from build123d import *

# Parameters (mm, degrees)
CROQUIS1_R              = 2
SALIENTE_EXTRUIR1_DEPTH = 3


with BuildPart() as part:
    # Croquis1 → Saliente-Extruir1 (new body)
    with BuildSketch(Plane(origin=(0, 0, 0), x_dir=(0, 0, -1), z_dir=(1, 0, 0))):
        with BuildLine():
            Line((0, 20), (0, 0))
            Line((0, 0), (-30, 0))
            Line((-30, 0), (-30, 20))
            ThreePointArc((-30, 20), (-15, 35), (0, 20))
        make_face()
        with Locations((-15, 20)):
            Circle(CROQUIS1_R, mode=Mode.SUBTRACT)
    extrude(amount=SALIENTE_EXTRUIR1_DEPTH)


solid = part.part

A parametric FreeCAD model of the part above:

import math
import FreeCAD as App
import Part
import Sketcher

V = App.Vector
Q = App.Units.Quantity

doc = App.newDocument("Part")
params = doc.addObject("Spreadsheet::Sheet", "Params")
for row, (alias, value) in enumerate([
    ("sketch1_diameter", "4 mm"),
    ("sketch1_radius", "15 mm"),
    ("sketch1_width", "20 mm"),
    ("pad1_length", "3 mm"),
], start=1):
    params.set(f"A{row}", alias)
    params.set(f"B{row}", "=" + value)
    params.setAlias(f"B{row}", alias)

body = doc.addObject("PartDesign::Body", "Body")

# Sketch on YZ plane
sketch1 = doc.addObject("Sketcher::SketchObject", "Sketch")
body.addObject(sketch1)
sketch1.AttachmentSupport = (doc.YZ_Plane, [""])
sketch1.MapMode = "FlatFace"
sketch1.addGeometry(Part.LineSegment(V(0, 0, 0), V(20, 0, 0)), False)
sketch1.addGeometry(Part.ArcOfCircle(Part.Circle(V(20, 15, 0), V(0, 0, 1), 15), math.radians(-90), math.radians(90)), False)
sketch1.addGeometry(Part.LineSegment(V(20, 30, 0), V(0, 30, 0)), False)
sketch1.addGeometry(Part.LineSegment(V(0, 30, 0), V(0, 0, 0)), False)
sketch1.addGeometry(Part.Circle(V(20, 15, 0), V(0, 0, 1), 2), False)
sketch1.addConstraint(Sketcher.Constraint("Tangent", 0, 2, 1, 1))
sketch1.addConstraint(Sketcher.Constraint("Tangent", 1, 2, 2, 1))
sketch1.addConstraint(Sketcher.Constraint("Coincident", 2, 2, 3, 1))
sketch1.addConstraint(Sketcher.Constraint("Coincident", 3, 2, 0, 1))
sketch1.addConstraint(Sketcher.Constraint("Horizontal", 0))
sketch1.addConstraint(Sketcher.Constraint("Horizontal", 2))
sketch1.addConstraint(Sketcher.Constraint("Vertical", 3))
sketch1.addConstraint(Sketcher.Constraint("Coincident", 3, 2, -1, 1))
sketch1.addConstraint(Sketcher.Constraint("Coincident", 4, 3, 1, 3))
sketch1.addConstraint(Sketcher.Constraint("Diameter", 4, Q("4 mm")))
sketch1.addConstraint(Sketcher.Constraint("Radius", 1, Q("15 mm")))
sketch1.addConstraint(Sketcher.Constraint("DistanceX", 0, 1, 0, 2, Q("20 mm")))
sketch1.setExpression("Constraints[9]", "Params.sketch1_diameter")
sketch1.setExpression("Constraints[10]", "Params.sketch1_radius")
sketch1.setExpression("Constraints[11]", "Params.sketch1_width")
pad1 = doc.addObject("PartDesign::Pad", "Pad")
body.addObject(pad1)
pad1.Profile = sketch1
pad1.setExpression("Length", "Params.pad1_length")

doc.recompute()
